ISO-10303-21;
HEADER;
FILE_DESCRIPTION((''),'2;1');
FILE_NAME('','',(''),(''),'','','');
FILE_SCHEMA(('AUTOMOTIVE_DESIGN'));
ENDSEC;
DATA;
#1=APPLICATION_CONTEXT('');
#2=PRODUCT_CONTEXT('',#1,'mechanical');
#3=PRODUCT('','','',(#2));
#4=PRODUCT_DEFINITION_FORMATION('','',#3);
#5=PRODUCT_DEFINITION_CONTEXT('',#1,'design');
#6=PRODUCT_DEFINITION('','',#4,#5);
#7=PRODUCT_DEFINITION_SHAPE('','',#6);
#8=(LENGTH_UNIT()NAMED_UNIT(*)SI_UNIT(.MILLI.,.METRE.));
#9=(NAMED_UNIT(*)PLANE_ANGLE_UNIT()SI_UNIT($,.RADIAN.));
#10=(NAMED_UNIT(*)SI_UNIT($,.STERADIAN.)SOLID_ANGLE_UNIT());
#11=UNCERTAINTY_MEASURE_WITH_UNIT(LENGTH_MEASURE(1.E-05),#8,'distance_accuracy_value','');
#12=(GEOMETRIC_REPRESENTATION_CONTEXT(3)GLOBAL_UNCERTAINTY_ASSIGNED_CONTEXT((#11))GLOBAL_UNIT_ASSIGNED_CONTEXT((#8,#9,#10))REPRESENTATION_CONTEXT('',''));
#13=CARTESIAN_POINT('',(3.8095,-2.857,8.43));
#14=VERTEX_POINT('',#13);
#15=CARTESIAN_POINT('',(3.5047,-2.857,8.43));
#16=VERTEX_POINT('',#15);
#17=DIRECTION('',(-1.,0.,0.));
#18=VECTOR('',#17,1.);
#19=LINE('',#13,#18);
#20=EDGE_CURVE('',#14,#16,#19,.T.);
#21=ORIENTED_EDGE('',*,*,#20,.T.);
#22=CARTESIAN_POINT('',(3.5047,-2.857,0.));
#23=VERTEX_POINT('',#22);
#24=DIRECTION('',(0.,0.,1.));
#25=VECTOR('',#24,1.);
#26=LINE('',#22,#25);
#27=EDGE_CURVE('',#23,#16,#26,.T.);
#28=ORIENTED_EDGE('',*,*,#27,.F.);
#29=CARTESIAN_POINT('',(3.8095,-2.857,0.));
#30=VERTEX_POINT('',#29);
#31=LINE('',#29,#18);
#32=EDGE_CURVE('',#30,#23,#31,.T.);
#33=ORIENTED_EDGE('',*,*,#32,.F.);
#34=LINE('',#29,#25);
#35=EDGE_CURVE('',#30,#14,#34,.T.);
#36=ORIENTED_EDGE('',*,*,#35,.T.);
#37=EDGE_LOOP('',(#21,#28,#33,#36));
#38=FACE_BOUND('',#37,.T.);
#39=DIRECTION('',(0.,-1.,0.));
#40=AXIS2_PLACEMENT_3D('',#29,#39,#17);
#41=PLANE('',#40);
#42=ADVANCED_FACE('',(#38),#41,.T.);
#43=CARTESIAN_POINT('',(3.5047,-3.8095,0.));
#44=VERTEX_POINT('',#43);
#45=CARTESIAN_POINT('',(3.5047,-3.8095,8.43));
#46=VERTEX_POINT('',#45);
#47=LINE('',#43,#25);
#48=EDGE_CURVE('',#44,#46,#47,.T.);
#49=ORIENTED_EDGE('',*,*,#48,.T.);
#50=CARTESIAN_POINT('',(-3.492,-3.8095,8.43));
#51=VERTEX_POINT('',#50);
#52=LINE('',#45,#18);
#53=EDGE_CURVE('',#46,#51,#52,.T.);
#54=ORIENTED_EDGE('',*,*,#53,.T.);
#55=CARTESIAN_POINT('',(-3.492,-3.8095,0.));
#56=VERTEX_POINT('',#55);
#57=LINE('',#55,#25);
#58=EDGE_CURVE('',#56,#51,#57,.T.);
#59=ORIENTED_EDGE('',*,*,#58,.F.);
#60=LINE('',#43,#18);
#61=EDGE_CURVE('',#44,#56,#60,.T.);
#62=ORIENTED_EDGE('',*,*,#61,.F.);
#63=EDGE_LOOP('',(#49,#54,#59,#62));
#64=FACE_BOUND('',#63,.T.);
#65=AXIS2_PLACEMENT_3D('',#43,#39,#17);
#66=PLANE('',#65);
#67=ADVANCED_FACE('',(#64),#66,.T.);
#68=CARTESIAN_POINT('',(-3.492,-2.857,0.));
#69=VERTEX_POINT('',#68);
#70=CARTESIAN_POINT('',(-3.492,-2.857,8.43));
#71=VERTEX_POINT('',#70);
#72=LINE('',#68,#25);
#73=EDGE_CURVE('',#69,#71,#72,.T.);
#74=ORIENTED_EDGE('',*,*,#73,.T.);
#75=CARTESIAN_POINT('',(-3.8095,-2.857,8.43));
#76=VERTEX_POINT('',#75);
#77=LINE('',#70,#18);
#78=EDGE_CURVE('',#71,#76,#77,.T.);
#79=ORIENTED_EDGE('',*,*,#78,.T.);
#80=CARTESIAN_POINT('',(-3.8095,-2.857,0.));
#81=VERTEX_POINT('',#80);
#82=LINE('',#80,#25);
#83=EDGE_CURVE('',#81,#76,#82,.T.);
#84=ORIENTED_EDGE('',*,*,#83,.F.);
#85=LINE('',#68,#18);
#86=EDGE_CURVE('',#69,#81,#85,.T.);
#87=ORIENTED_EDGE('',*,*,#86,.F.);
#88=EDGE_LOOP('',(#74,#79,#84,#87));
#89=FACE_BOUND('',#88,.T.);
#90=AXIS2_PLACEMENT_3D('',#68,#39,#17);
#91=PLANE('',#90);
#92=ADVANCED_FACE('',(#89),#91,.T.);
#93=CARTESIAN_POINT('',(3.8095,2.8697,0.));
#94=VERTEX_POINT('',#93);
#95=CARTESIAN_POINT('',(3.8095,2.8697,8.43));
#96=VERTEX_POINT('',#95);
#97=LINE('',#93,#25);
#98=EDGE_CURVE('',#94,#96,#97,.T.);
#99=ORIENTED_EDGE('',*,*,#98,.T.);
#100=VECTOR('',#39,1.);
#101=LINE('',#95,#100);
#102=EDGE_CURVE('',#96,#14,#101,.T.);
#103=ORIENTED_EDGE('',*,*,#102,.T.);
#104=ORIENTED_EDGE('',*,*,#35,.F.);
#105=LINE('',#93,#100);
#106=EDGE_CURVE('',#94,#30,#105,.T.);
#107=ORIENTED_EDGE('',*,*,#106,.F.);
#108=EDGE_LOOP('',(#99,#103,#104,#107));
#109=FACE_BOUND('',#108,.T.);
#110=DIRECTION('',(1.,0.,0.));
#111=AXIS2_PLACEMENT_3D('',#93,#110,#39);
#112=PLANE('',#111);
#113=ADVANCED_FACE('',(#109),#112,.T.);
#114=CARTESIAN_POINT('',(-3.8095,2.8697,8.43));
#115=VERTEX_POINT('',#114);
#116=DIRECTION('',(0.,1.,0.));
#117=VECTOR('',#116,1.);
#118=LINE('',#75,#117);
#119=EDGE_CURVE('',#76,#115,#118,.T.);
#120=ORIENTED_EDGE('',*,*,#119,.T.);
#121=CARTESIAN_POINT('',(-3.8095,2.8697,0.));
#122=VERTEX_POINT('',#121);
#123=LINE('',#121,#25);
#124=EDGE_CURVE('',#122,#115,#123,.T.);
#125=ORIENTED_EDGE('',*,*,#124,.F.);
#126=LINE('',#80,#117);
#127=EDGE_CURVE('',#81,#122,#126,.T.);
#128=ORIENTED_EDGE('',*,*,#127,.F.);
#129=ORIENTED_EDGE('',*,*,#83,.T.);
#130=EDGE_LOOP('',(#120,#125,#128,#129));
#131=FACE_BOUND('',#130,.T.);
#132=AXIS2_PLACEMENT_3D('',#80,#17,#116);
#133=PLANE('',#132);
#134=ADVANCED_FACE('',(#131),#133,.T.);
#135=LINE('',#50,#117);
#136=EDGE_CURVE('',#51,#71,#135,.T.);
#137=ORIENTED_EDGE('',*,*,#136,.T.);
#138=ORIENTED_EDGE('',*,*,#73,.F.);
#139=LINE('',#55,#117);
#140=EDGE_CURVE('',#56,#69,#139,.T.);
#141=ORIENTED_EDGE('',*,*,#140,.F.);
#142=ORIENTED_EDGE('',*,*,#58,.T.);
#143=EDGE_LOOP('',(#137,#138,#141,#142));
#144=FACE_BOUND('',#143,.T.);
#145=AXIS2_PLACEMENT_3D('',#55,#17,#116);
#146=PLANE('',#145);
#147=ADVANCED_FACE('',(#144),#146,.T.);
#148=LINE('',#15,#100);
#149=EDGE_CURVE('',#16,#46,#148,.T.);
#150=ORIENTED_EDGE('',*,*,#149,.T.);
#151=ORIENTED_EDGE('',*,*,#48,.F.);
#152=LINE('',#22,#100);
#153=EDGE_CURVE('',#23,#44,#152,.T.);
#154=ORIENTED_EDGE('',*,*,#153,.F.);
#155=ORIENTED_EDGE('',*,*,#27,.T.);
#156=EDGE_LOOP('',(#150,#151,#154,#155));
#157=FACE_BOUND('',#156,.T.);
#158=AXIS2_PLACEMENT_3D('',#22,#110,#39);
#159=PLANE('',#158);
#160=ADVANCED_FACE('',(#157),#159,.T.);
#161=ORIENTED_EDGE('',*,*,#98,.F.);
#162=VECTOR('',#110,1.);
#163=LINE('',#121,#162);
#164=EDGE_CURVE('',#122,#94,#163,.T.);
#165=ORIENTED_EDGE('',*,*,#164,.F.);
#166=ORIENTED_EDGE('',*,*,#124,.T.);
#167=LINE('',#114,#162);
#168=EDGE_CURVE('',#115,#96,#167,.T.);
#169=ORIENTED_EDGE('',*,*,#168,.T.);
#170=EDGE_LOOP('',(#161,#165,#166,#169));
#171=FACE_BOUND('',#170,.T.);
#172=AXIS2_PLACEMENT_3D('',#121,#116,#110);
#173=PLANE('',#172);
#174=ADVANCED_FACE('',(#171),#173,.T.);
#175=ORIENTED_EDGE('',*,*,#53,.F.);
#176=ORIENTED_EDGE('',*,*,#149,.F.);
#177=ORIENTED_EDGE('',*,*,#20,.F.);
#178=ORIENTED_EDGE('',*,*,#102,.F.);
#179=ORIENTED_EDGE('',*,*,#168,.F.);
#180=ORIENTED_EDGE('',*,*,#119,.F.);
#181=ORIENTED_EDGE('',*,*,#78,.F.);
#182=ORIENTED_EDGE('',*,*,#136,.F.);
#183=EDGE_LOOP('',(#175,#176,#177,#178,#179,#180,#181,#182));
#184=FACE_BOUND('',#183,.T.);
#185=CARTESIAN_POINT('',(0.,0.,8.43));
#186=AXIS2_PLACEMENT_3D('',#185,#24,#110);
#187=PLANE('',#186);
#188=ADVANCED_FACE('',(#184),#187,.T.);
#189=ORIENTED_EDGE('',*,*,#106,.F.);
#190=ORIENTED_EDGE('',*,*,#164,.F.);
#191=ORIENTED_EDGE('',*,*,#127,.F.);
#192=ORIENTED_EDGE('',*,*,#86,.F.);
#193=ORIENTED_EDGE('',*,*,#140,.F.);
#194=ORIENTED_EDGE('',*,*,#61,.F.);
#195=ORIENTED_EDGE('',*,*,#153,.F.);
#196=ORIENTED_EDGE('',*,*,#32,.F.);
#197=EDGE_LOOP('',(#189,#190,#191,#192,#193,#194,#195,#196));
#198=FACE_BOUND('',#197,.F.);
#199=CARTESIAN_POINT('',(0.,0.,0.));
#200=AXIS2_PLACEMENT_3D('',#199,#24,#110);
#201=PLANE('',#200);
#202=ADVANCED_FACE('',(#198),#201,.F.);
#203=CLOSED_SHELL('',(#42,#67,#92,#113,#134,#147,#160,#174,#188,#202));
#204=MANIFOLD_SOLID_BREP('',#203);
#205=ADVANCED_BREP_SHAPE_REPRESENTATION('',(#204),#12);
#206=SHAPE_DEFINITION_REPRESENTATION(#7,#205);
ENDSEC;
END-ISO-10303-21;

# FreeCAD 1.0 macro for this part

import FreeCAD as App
import Part
import Sketcher
Q = App.Units.Quantity

doc = App.newDocument("Part")
body = doc.addObject("PartDesign::Body", "Body")

sketch1 = body.newObject("Sketcher::SketchObject", "Sketch")
sketch1.AttachmentSupport = (doc.getObject("XY_Plane"), [""])
sketch1.MapMode = "FlatFace"
sketch1.addGeometry([
    Part.LineSegment(App.Vector(3.81, -2.86, 0), App.Vector(3.81, 2.87, 0)),
    Part.LineSegment(App.Vector(3.81, 2.87, 0), App.Vector(-3.81, 2.87, 0)),
    Part.LineSegment(App.Vector(-3.81, 2.87, 0), App.Vector(-3.81, -2.86, 0)),
    Part.LineSegment(App.Vector(-3.81, -2.86, 0), App.Vector(-3.49, -2.86, 0)),
    Part.LineSegment(App.Vector(-3.49, -2.86, 0), App.Vector(-3.49, -3.81, 0)),
    Part.LineSegment(App.Vector(-3.49, -3.81, 0), App.Vector(3.5, -3.81, 0)),
    Part.LineSegment(App.Vector(3.5, -3.81, 0), App.Vector(3.5, -2.86, 0)),
    Part.LineSegment(App.Vector(3.5, -2.86, 0), App.Vector(3.81, -2.86, 0)),
], False)
sketch1.addConstraint([
    Sketcher.Constraint("Coincident", 0, 2, 1, 1),
    Sketcher.Constraint("Coincident", 1, 2, 2, 1),
    Sketcher.Constraint("Coincident", 2, 2, 3, 1),
    Sketcher.Constraint("Coincident", 3, 2, 4, 1),
    Sketcher.Constraint("Coincident", 4, 2, 5, 1),
    Sketcher.Constraint("Coincident", 5, 2, 6, 1),
    Sketcher.Constraint("Coincident", 6, 2, 7, 1),
    Sketcher.Constraint("Coincident", 7, 2, 0, 1),
    Sketcher.Constraint("Vertical", 0),
    Sketcher.Constraint("Horizontal", 1),
    Sketcher.Constraint("Vertical", 2),
    Sketcher.Constraint("Horizontal", 3),
    Sketcher.Constraint("Vertical", 4),
    Sketcher.Constraint("Horizontal", 5),
    Sketcher.Constraint("Vertical", 6),
    Sketcher.Constraint("Horizontal", 7),
    Sketcher.Constraint("Symmetric", 2, 2, 7, 2, -2),
    Sketcher.Constraint("DistanceX", 7, 1, 7, 2, Q("0.012 in")),
    Sketcher.Constraint("DistanceX", 3, 1, 3, 2, Q("0.0125 in")),
    Sketcher.Constraint("DistanceY", 4, 2, 4, 1, Q("0.0375 in")),
    Sketcher.Constraint("DistanceX", 1, 2, 1, 1, Q("7.619 mm")),
    Sketcher.Constraint("DistanceY", 0, 1, 0, 2, Q("5.7267 mm")),
    Sketcher.Constraint("DistanceY", -1, 1, 0, 2, Q("2.8697 mm")),
])
pad1 = body.newObject("PartDesign::Pad", "Pad")
pad1.Profile = sketch1
pad1.Length = Q("0.3318898 in")

doc.recompute()
